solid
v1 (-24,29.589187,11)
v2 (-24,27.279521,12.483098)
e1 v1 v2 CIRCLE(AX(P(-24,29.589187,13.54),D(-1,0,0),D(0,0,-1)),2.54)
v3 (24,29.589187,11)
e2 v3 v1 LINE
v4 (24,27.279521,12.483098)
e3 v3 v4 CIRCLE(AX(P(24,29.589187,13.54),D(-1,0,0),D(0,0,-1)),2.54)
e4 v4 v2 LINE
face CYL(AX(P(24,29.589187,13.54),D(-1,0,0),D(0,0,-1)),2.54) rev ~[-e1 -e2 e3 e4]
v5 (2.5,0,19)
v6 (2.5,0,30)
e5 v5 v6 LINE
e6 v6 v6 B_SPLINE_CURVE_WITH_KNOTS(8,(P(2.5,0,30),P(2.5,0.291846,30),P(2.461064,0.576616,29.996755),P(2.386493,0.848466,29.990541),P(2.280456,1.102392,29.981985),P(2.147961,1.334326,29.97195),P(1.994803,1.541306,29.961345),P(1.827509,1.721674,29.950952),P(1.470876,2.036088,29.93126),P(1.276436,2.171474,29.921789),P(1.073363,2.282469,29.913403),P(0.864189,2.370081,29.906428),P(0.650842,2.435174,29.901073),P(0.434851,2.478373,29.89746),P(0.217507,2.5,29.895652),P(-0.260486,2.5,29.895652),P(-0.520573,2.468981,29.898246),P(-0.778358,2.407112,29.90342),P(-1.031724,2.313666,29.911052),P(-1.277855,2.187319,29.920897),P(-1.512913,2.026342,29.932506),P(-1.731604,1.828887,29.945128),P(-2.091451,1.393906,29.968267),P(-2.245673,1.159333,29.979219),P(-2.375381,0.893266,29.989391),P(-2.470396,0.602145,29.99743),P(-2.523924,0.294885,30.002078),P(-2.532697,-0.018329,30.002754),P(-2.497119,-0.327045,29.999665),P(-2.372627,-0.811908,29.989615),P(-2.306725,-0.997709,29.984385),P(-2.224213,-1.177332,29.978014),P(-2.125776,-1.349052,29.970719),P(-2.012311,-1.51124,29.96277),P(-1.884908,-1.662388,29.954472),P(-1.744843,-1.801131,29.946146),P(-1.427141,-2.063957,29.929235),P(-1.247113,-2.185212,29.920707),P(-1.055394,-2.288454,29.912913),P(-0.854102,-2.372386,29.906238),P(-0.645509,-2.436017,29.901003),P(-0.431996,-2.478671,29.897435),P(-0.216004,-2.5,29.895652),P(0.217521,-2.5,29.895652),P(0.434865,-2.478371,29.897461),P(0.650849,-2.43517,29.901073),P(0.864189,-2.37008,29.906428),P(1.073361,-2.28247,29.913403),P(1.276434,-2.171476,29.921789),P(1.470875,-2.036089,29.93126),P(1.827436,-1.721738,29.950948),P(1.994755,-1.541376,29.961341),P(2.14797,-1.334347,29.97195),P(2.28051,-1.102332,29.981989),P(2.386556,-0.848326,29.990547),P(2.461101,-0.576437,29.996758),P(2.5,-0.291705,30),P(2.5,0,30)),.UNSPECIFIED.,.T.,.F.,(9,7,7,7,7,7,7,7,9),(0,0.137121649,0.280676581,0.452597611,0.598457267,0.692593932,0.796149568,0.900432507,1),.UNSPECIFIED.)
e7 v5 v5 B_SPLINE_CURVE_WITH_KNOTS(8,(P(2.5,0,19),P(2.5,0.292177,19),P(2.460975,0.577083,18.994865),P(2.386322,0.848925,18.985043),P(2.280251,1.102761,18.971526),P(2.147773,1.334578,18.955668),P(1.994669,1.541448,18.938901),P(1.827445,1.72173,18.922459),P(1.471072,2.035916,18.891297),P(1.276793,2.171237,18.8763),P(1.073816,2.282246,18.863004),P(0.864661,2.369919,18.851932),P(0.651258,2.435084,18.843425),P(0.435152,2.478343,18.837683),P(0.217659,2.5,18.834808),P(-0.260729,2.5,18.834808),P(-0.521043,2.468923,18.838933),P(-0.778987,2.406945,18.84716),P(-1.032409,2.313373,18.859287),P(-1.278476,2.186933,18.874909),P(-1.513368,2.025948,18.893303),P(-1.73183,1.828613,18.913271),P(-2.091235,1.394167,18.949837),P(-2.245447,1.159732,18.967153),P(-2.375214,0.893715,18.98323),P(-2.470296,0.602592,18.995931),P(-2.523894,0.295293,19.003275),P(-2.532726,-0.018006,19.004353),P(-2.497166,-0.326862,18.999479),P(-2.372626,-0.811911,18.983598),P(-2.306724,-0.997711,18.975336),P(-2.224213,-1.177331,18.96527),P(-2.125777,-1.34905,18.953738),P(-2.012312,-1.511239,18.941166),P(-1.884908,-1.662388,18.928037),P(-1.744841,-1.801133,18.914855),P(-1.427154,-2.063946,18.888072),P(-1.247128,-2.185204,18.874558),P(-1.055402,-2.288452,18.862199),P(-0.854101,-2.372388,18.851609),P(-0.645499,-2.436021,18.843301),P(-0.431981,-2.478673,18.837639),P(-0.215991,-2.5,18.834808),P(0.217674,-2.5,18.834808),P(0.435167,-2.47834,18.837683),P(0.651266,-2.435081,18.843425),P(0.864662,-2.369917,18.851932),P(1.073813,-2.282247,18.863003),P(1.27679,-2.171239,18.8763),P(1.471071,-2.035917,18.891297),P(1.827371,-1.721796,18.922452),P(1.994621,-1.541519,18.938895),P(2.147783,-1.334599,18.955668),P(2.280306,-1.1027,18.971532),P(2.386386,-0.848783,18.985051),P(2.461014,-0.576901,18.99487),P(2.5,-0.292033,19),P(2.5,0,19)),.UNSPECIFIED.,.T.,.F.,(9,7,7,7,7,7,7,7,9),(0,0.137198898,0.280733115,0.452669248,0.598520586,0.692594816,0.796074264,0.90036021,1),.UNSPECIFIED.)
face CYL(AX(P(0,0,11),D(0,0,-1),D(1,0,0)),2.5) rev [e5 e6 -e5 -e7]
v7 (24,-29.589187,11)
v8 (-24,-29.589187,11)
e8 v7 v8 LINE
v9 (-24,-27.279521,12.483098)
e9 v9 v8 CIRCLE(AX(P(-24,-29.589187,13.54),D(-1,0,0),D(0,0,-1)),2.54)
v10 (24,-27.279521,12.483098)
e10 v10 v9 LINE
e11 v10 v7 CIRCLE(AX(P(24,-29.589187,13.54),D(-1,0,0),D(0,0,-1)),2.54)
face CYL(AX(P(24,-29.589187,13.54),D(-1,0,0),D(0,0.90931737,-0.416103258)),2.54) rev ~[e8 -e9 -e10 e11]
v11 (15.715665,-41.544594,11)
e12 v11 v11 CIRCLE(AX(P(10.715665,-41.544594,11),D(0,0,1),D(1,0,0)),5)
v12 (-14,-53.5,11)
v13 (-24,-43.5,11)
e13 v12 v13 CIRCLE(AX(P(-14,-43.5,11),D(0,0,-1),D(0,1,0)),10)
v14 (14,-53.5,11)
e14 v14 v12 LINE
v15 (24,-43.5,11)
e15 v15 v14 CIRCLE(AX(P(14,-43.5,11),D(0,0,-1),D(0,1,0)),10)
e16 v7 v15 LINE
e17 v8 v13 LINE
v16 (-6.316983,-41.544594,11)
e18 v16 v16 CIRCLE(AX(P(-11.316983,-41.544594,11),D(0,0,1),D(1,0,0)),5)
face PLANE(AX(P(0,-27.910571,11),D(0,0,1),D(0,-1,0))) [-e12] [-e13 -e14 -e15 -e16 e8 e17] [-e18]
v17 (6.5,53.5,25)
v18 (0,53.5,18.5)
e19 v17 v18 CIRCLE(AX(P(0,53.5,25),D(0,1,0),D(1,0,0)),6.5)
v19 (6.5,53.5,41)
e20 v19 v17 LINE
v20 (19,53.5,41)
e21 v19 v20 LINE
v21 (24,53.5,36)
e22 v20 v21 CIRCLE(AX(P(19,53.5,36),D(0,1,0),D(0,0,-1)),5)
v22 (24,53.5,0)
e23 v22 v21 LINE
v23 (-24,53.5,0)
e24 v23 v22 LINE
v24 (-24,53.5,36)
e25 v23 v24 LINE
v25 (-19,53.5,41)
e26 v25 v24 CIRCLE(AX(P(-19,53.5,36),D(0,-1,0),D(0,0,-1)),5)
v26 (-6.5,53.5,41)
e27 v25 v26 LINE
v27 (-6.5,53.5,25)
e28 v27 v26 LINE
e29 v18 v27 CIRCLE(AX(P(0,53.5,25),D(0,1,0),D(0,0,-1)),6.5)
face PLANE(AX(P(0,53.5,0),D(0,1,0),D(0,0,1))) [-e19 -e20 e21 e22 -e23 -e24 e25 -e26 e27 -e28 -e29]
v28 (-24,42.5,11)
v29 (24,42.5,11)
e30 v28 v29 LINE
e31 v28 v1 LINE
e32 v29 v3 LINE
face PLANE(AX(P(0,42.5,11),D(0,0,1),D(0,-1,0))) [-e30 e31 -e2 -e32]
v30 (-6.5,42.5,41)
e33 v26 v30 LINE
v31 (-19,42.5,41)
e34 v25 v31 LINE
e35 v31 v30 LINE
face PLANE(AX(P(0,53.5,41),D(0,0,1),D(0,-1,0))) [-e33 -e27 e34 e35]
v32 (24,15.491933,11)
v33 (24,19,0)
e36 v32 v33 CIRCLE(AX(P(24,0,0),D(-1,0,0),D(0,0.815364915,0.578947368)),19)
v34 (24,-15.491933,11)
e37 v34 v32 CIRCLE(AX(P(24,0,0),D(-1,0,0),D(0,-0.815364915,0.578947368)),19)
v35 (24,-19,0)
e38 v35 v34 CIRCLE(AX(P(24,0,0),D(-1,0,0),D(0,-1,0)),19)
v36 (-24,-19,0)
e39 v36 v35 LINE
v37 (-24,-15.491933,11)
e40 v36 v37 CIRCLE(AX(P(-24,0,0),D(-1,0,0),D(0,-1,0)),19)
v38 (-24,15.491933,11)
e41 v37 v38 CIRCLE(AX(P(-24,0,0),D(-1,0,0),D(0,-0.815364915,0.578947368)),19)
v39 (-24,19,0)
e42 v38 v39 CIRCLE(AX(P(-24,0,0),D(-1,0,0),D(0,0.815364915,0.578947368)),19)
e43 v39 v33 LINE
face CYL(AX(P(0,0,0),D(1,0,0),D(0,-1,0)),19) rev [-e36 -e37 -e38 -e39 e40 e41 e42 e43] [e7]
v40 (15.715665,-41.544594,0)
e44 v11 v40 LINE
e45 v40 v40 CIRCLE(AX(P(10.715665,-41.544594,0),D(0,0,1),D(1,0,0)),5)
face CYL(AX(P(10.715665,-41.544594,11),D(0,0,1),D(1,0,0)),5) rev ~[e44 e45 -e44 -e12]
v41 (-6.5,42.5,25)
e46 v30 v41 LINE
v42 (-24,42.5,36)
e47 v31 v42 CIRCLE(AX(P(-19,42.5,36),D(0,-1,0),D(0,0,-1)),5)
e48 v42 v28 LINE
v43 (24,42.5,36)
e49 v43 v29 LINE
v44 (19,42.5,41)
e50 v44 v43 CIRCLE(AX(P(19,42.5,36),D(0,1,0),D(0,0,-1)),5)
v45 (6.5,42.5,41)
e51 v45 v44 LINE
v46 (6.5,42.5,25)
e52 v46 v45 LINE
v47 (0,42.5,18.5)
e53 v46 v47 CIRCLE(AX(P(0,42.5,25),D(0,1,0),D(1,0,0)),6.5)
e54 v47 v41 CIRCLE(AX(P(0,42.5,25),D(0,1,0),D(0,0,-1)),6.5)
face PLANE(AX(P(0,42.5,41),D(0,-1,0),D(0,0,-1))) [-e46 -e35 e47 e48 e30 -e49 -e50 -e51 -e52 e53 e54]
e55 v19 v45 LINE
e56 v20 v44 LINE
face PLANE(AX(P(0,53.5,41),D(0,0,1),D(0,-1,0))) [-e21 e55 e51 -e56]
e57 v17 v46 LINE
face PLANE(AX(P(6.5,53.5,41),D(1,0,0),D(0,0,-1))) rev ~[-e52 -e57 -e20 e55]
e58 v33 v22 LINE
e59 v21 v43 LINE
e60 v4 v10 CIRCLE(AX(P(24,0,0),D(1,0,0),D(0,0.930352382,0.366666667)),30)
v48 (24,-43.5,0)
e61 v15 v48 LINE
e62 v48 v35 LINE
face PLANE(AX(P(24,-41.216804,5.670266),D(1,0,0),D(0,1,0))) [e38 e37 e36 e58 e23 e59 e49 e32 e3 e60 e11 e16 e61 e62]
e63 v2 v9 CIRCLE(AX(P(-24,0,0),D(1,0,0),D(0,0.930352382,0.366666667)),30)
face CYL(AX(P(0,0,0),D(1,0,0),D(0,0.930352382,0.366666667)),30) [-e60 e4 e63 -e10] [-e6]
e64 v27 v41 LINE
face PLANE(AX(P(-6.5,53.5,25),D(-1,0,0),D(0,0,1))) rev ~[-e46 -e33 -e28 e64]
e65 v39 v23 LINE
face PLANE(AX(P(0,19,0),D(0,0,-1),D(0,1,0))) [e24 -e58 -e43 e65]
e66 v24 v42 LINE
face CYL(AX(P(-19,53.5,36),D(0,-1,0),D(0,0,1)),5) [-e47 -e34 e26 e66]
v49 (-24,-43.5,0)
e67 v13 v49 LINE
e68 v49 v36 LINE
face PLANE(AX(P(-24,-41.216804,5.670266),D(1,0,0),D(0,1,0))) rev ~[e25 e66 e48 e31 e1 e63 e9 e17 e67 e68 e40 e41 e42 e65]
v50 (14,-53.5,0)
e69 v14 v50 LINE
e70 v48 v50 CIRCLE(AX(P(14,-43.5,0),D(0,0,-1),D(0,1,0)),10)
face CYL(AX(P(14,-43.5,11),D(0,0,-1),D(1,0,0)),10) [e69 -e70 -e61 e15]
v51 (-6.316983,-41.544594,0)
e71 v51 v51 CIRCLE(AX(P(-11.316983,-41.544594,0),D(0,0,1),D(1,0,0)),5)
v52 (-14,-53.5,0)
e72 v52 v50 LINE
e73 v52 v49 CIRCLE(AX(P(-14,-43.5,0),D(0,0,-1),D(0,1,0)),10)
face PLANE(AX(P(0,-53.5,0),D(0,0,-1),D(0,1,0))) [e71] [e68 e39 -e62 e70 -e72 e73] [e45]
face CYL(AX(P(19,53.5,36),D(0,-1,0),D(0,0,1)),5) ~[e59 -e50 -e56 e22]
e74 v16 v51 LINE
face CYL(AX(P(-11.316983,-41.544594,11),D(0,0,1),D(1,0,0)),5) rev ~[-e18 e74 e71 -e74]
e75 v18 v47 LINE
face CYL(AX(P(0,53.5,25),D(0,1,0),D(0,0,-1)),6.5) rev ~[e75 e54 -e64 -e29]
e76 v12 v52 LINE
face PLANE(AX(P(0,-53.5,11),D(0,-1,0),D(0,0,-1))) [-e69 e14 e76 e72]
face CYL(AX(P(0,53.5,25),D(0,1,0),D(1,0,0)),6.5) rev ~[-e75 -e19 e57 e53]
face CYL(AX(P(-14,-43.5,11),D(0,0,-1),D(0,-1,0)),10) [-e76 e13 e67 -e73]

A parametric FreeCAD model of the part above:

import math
import FreeCAD as App
import Part
import Sketcher

V = App.Vector
Q = App.Units.Quantity


def edges_at(feature, points):
    """Names of the edges that pass closest to the given points."""
    edges = feature.Shape.Edges
    near = lambda p: min(range(len(edges)), key=lambda i: edges[i].distToShape(Part.Vertex(*p))[0])
    return sorted({f"Edge{near(p) + 1}" for p in points})

doc = App.newDocument("Part")
body = doc.addObject("PartDesign::Body", "Body")

sketch1 = body.newObject("Sketcher::SketchObject", "Sketch")
sketch1.AttachmentSupport = (doc.getObject("YZ_Plane"), [""])
sketch1.MapMode = "FlatFace"
sketch1.addGeometry([
    Part.LineSegment(V(-54, 11, 0), V(-54, 0, 0)),
    Part.LineSegment(V(-54, 0, 0), V(-19, 0, 0)),
    Part.ArcOfCircle(Part.Circle(V(0, 0, 0), V(0, 0, 1), 19), math.radians(145), math.radians(180)),
    Part.ArcOfCircle(Part.Circle(V(0, 0, 0), V(0, 0, 1), 19), math.radians(35), math.radians(145)),
    Part.ArcOfCircle(Part.Circle(V(0, 0, 0), V(0, 0, 1), 19), math.radians(0), math.radians(35)),
    Part.LineSegment(V(19, 0, 0), V(54, 0, 0)),
    Part.LineSegment(V(54, 0, 0), V(54, 41, 0)),
    Part.LineSegment(V(54, 41, 0), V(42, 41, 0)),
    Part.LineSegment(V(42, 41, 0), V(42, 11, 0)),
    Part.LineSegment(V(42, 11, 0), V(28, 11, 0)),
    Part.ArcOfCircle(Part.Circle(V(0, 0, 0), V(0, 0, 1), 30), math.radians(22), math.radians(158)),
    Part.LineSegment(V(-28, 11, 0), V(-54, 11, 0)),
], False)
sketch1.addConstraint([
    Sketcher.Constraint("Coincident", 0, 2, 1, 1),
    Sketcher.Constraint("Coincident", 1, 2, 2, 2),
    Sketcher.Constraint("Tangent", 2, 1, 3, 2),
    Sketcher.Constraint("Tangent", 3, 1, 4, 2),
    Sketcher.Constraint("Coincident", 4, 1, 5, 1),
    Sketcher.Constraint("Coincident", 5, 2, 6, 1),
    Sketcher.Constraint("Coincident", 6, 2, 7, 1),
    Sketcher.Constraint("Coincident", 7, 2, 8, 1),
    Sketcher.Constraint("Coincident", 8, 2, 9, 1),
    Sketcher.Constraint("Coincident", 9, 2, 10, 1),
    Sketcher.Constraint("Coincident", 10, 2, 11, 1),
    Sketcher.Constraint("Coincident", 11, 2, 0, 1),
    Sketcher.Constraint("Vertical", 0),
    Sketcher.Constraint("Horizontal", 1),
    Sketcher.Constraint("Horizontal", 5),
    Sketcher.Constraint("Vertical", 6),
    Sketcher.Constraint("Horizontal", 7),
    Sketcher.Constraint("Vertical", 8),
    Sketcher.Constraint("Horizontal", 9),
    Sketcher.Constraint("Horizontal", 11),
    Sketcher.Constraint("Coincident", 2, 3, -1, 1),
    Sketcher.Constraint("Coincident", 4, 3, -1, 1),
    Sketcher.Constraint("Coincident", 10, 3, -1, 1),
    Sketcher.Constraint("Symmetric", 0, 2, 5, 2, -1, 1),
    Sketcher.Constraint("PointOnObject", 0, 2, -1),
    Sketcher.Constraint("Horizontal", 2, 1, 3, 1),
    Sketcher.Constraint("Horizontal", 3, 1, 8, 2),
    Sketcher.Constraint("Horizontal", 9, 2, 10, 2),
    Sketcher.Constraint("Equal", 7, 0),
    Sketcher.Constraint("Radius", 2, Q("19 mm")),
    Sketcher.Constraint("Radius", 10, Q("30 mm")),
    Sketcher.Constraint("DistanceX", 7, 2, 7, 1, Q("11 mm")),
    Sketcher.Constraint("DistanceY", 6, 1, 6, 2, Q("41 mm")),
    Sketcher.Constraint("DistanceX", 1, 1, 1, 2, Q("34.5 mm")),
])
pad1 = body.newObject("PartDesign::Pad", "Pad")
pad1.Profile = sketch1
pad1.Length = 48
pad1.Midplane = True
doc.recompute()

fillet = body.newObject("PartDesign::Fillet", "Fillet")
fillet.Base = (pad1, edges_at(pad1, [(24, 48, 41)]))
fillet.Radius = 5
doc.recompute()

fillet2 = body.newObject("PartDesign::Fillet", "Fillet001")
fillet2.Base = (fillet, edges_at(fillet, [(-24, 48, 41)]))
fillet2.Radius = 5

sketch2 = body.newObject("Sketcher::SketchObject", "Sketch001")
sketch2.AttachmentSupport = (doc.getObject("XZ_Plane"), [""])
sketch2.MapMode = "FlatFace"
sketch2.AttachmentOffset = App.Placement(V(0, 0, -53.5), App.Rotation())
sketch2.addGeometry([
    Part.ArcOfCircle(Part.Circle(V(0, 25, 0), V(0, 0, 1), 6), math.radians(-90), math.radians(0)),
    Part.ArcOfCircle(Part.Circle(V(0, 25, 0), V(0, 0, 1), 6), math.radians(180), math.radians(270)),
    Part.LineSegment(V(-6, 25, 0), V(-6, 41, 0)),
    Part.LineSegment(V(-6, 41, 0), V(6, 41, 0)),
    Part.LineSegment(V(6, 41, 0), V(6, 25, 0)),
], False)
sketch2.addConstraint([
    Sketcher.Constraint("Tangent", 0, 1, 1, 2),
    Sketcher.Constraint("Tangent", 1, 1, 2, 1),
    Sketcher.Constraint("Coincident", 2, 2, 3, 1),
    Sketcher.Constraint("Coincident", 3, 2, 4, 1),
    Sketcher.Constraint("Tangent", 4, 2, 0, 2),
    Sketcher.Constraint("Vertical", 2),
    Sketcher.Constraint("Horizontal", 3),
    Sketcher.Constraint("Vertical", 4),
    Sketcher.Constraint("Equal", 0, 1),
    Sketcher.Constraint("PointOnObject", 0, 3, -2),
    Sketcher.Constraint("PointOnObject", 0, 1, -2),
    Sketcher.Constraint("Radius", 0, Q("6.5 mm")),
    Sketcher.Constraint("DistanceY", 2, 1, 2, 2, Q("16 mm")),
    Sketcher.Constraint("DistanceY", -1, 1, 0, 3, Q("25 mm")),
])
pocket1 = body.newObject("PartDesign::Pocket", "Pocket")
pocket1.Profile = sketch2
pocket1.Length = 25.4
pocket1.Reversed = True
doc.recompute()

fillet3 = body.newObject("PartDesign::Fillet", "Fillet002")
fillet3.Base = (pocket1, edges_at(pocket1, [(0, 27.911, 11), (0, -27.911, 11)]))
fillet3.Radius = 2.54

sketch3 = body.newObject("Sketcher::SketchObject", "Sketch002")
sketch3.AttachmentSupport = (doc.getObject("XY_Plane"), [""])
sketch3.MapMode = "FlatFace"
sketch3.AttachmentOffset = App.Placement(V(0, 0, 11), App.Rotation())
sketch3.addGeometry(Part.Circle(V(0, 0, 0), V(0, 0, 1), 2.5), False)
sketch3.addConstraint([
    Sketcher.Constraint("Coincident", 0, 3, -1, 1),
    Sketcher.Constraint("Diameter", 0, Q("5 mm")),
])
pocket2 = body.newObject("PartDesign::Pocket", "Pocket001")
pocket2.Profile = sketch3
pocket2.Length = 25.4
pocket2.Reversed = True
doc.recompute()

fillet4 = body.newObject("PartDesign::Fillet", "Fillet003")
fillet4.Base = (pocket2, edges_at(pocket2, [(-24, -53.5, 5.5), (24, -53.5, 5.5)]))
fillet4.Radius = 10

sketch4 = body.newObject("Sketcher::SketchObject", "Sketch003")
sketch4.AttachmentSupport = (doc.getObject("XY_Plane"), [""])
sketch4.MapMode = "FlatFace"
sketch4.AttachmentOffset = App.Placement(V(0, 0, 11), App.Rotation())
sketch4.addGeometry([
    Part.Circle(V(-11, -42, 0), V(0, 0, 1), 5),
    Part.Circle(V(11, -42, 0), V(0, 0, 1), 5),
], False)
sketch4.addConstraint([
    Sketcher.Constraint("Equal", 0, 1),
    Sketcher.Constraint("Horizontal", 0, 3, 1, 3),
    Sketcher.Constraint("Diameter", 0, Q("10 mm")),
    Sketcher.Constraint("DistanceX", 0, 3, 1, 3, Q("22.032648 mm")),
    Sketcher.Constraint("DistanceX", 0, 3, -1, 1, Q("11.316983 mm")),
    Sketcher.Constraint("DistanceY", 0, 3, -1, 1, Q("41.544594 mm")),
])
pocket3 = body.newObject("PartDesign::Pocket", "Pocket002")
pocket3.Profile = sketch4
pocket3.Length = 25.4

doc.recompute()
